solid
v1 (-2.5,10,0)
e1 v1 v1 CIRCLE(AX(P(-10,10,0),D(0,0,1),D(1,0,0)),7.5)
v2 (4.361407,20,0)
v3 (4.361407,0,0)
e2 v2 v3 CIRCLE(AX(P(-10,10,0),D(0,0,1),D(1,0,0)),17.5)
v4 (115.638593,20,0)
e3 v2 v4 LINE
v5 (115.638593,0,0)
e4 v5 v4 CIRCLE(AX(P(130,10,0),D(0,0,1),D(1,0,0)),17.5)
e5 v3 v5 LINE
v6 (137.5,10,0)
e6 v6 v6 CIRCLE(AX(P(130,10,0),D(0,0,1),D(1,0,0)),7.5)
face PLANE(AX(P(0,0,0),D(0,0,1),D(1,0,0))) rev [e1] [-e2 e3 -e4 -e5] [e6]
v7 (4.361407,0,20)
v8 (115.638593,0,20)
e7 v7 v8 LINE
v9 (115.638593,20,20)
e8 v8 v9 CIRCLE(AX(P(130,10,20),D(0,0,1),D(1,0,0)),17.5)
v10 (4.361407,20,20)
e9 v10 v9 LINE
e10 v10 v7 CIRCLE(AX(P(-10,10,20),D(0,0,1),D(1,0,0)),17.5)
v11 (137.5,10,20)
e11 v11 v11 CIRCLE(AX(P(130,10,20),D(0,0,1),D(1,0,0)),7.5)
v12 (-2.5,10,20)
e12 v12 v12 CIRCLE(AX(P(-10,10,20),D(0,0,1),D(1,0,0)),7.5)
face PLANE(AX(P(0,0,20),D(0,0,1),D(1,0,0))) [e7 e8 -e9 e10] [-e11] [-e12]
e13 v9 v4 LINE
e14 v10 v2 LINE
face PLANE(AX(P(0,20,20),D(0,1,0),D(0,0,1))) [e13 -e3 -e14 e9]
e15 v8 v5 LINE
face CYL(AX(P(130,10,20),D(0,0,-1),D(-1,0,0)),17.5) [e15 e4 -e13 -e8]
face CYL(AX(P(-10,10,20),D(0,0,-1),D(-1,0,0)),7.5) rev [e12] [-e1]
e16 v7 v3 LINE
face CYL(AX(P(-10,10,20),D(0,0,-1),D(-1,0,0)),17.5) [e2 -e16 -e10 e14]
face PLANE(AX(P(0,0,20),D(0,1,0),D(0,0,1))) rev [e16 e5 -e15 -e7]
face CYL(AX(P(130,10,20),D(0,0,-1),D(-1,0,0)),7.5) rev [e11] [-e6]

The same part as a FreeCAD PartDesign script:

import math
import FreeCAD as App
import Part
import Sketcher

doc = App.newDocument("Part")
body = doc.addObject("PartDesign::Body", "Body")

# Sketch on XY plane
sketch1 = doc.addObject("Sketcher::SketchObject", "Sketch")
body.addObject(sketch1)
sketch1.AttachmentSupport = (doc.XY_Plane, [""])
sketch1.MapMode = "FlatFace"
sketch1.addGeometry(Part.LineSegment(App.Vector(4, 0, 0), App.Vector(116, 0, 0)), False)
sketch1.addGeometry(Part.ArcOfCircle(Part.Circle(App.Vector(130, 10, 0), App.Vector(0, 0, 1), 18), math.radians(-145), math.radians(0)), False)
sketch1.addGeometry(Part.ArcOfCircle(Part.Circle(App.Vector(130, 10, 0), App.Vector(0, 0, 1), 18), math.radians(0), math.radians(145)), False)
sketch1.addGeometry(Part.LineSegment(App.Vector(116, 20, 0), App.Vector(4, 20, 0)), False)
sketch1.addGeometry(Part.ArcOfCircle(Part.Circle(App.Vector(-10, 10, 0), App.Vector(0, 0, 1), 18), math.radians(35), math.radians(325)), False)
sketch1.addGeometry(Part.Circle(App.Vector(-10, 10, 0), App.Vector(0, 0, 1), 8), False)
sketch1.addGeometry(Part.Circle(App.Vector(130, 10, 0), App.Vector(0, 0, 1), 8), False)
sketch1.addConstraint(Sketcher.Constraint("Coincident", 0, 2, 1, 1))
sketch1.addConstraint(Sketcher.Constraint("Tangent", 1, 2, 2, 1))
sketch1.addConstraint(Sketcher.Constraint("Coincident", 2, 2, 3, 1))
sketch1.addConstraint(Sketcher.Constraint("Coincident", 3, 2, 4, 1))
sketch1.addConstraint(Sketcher.Constraint("Coincident", 4, 2, 0, 1))
sketch1.addConstraint(Sketcher.Constraint("Horizontal", 0))
sketch1.addConstraint(Sketcher.Constraint("Horizontal", 3))
sketch1.addConstraint(Sketcher.Constraint("Coincident", 5, 3, 4, 3))
sketch1.addConstraint(Sketcher.Constraint("Coincident", 6, 3, 1, 3))
sketch1.addConstraint(Sketcher.Constraint("Equal", 1, 2))
sketch1.addConstraint(Sketcher.Constraint("Equal", 2, 4))
sketch1.addConstraint(Sketcher.Constraint("Equal", 5, 6))
sketch1.addConstraint(Sketcher.Constraint("PointOnObject", 0, 2, -1))
sketch1.addConstraint(Sketcher.Constraint("Horizontal", 2, 3, 4, 3))
sketch1.addConstraint(Sketcher.Constraint("Horizontal", 6, 3, 1, 2))
sketch1.addConstraint(Sketcher.Constraint("Vertical", 0, 2, 2, 2))
sketch1.addConstraint(Sketcher.Constraint("Diameter", 5, 15.0))
sketch1.addConstraint(Sketcher.Constraint("Radius", 1, 17.5))
sketch1.addConstraint(Sketcher.Constraint("DistanceX", -1, 1, 1, 3, 130.0))
sketch1.addConstraint(Sketcher.Constraint("DistanceY", -1, 1, 1, 3, 10.0))
sketch1.addConstraint(Sketcher.Constraint("DistanceX", 4, 3, -1, 1, 10.0))
pad1 = doc.addObject("PartDesign::Pad", "Pad")
body.addObject(pad1)
pad1.Profile = sketch1
pad1.Length = 20

doc.recompute()
